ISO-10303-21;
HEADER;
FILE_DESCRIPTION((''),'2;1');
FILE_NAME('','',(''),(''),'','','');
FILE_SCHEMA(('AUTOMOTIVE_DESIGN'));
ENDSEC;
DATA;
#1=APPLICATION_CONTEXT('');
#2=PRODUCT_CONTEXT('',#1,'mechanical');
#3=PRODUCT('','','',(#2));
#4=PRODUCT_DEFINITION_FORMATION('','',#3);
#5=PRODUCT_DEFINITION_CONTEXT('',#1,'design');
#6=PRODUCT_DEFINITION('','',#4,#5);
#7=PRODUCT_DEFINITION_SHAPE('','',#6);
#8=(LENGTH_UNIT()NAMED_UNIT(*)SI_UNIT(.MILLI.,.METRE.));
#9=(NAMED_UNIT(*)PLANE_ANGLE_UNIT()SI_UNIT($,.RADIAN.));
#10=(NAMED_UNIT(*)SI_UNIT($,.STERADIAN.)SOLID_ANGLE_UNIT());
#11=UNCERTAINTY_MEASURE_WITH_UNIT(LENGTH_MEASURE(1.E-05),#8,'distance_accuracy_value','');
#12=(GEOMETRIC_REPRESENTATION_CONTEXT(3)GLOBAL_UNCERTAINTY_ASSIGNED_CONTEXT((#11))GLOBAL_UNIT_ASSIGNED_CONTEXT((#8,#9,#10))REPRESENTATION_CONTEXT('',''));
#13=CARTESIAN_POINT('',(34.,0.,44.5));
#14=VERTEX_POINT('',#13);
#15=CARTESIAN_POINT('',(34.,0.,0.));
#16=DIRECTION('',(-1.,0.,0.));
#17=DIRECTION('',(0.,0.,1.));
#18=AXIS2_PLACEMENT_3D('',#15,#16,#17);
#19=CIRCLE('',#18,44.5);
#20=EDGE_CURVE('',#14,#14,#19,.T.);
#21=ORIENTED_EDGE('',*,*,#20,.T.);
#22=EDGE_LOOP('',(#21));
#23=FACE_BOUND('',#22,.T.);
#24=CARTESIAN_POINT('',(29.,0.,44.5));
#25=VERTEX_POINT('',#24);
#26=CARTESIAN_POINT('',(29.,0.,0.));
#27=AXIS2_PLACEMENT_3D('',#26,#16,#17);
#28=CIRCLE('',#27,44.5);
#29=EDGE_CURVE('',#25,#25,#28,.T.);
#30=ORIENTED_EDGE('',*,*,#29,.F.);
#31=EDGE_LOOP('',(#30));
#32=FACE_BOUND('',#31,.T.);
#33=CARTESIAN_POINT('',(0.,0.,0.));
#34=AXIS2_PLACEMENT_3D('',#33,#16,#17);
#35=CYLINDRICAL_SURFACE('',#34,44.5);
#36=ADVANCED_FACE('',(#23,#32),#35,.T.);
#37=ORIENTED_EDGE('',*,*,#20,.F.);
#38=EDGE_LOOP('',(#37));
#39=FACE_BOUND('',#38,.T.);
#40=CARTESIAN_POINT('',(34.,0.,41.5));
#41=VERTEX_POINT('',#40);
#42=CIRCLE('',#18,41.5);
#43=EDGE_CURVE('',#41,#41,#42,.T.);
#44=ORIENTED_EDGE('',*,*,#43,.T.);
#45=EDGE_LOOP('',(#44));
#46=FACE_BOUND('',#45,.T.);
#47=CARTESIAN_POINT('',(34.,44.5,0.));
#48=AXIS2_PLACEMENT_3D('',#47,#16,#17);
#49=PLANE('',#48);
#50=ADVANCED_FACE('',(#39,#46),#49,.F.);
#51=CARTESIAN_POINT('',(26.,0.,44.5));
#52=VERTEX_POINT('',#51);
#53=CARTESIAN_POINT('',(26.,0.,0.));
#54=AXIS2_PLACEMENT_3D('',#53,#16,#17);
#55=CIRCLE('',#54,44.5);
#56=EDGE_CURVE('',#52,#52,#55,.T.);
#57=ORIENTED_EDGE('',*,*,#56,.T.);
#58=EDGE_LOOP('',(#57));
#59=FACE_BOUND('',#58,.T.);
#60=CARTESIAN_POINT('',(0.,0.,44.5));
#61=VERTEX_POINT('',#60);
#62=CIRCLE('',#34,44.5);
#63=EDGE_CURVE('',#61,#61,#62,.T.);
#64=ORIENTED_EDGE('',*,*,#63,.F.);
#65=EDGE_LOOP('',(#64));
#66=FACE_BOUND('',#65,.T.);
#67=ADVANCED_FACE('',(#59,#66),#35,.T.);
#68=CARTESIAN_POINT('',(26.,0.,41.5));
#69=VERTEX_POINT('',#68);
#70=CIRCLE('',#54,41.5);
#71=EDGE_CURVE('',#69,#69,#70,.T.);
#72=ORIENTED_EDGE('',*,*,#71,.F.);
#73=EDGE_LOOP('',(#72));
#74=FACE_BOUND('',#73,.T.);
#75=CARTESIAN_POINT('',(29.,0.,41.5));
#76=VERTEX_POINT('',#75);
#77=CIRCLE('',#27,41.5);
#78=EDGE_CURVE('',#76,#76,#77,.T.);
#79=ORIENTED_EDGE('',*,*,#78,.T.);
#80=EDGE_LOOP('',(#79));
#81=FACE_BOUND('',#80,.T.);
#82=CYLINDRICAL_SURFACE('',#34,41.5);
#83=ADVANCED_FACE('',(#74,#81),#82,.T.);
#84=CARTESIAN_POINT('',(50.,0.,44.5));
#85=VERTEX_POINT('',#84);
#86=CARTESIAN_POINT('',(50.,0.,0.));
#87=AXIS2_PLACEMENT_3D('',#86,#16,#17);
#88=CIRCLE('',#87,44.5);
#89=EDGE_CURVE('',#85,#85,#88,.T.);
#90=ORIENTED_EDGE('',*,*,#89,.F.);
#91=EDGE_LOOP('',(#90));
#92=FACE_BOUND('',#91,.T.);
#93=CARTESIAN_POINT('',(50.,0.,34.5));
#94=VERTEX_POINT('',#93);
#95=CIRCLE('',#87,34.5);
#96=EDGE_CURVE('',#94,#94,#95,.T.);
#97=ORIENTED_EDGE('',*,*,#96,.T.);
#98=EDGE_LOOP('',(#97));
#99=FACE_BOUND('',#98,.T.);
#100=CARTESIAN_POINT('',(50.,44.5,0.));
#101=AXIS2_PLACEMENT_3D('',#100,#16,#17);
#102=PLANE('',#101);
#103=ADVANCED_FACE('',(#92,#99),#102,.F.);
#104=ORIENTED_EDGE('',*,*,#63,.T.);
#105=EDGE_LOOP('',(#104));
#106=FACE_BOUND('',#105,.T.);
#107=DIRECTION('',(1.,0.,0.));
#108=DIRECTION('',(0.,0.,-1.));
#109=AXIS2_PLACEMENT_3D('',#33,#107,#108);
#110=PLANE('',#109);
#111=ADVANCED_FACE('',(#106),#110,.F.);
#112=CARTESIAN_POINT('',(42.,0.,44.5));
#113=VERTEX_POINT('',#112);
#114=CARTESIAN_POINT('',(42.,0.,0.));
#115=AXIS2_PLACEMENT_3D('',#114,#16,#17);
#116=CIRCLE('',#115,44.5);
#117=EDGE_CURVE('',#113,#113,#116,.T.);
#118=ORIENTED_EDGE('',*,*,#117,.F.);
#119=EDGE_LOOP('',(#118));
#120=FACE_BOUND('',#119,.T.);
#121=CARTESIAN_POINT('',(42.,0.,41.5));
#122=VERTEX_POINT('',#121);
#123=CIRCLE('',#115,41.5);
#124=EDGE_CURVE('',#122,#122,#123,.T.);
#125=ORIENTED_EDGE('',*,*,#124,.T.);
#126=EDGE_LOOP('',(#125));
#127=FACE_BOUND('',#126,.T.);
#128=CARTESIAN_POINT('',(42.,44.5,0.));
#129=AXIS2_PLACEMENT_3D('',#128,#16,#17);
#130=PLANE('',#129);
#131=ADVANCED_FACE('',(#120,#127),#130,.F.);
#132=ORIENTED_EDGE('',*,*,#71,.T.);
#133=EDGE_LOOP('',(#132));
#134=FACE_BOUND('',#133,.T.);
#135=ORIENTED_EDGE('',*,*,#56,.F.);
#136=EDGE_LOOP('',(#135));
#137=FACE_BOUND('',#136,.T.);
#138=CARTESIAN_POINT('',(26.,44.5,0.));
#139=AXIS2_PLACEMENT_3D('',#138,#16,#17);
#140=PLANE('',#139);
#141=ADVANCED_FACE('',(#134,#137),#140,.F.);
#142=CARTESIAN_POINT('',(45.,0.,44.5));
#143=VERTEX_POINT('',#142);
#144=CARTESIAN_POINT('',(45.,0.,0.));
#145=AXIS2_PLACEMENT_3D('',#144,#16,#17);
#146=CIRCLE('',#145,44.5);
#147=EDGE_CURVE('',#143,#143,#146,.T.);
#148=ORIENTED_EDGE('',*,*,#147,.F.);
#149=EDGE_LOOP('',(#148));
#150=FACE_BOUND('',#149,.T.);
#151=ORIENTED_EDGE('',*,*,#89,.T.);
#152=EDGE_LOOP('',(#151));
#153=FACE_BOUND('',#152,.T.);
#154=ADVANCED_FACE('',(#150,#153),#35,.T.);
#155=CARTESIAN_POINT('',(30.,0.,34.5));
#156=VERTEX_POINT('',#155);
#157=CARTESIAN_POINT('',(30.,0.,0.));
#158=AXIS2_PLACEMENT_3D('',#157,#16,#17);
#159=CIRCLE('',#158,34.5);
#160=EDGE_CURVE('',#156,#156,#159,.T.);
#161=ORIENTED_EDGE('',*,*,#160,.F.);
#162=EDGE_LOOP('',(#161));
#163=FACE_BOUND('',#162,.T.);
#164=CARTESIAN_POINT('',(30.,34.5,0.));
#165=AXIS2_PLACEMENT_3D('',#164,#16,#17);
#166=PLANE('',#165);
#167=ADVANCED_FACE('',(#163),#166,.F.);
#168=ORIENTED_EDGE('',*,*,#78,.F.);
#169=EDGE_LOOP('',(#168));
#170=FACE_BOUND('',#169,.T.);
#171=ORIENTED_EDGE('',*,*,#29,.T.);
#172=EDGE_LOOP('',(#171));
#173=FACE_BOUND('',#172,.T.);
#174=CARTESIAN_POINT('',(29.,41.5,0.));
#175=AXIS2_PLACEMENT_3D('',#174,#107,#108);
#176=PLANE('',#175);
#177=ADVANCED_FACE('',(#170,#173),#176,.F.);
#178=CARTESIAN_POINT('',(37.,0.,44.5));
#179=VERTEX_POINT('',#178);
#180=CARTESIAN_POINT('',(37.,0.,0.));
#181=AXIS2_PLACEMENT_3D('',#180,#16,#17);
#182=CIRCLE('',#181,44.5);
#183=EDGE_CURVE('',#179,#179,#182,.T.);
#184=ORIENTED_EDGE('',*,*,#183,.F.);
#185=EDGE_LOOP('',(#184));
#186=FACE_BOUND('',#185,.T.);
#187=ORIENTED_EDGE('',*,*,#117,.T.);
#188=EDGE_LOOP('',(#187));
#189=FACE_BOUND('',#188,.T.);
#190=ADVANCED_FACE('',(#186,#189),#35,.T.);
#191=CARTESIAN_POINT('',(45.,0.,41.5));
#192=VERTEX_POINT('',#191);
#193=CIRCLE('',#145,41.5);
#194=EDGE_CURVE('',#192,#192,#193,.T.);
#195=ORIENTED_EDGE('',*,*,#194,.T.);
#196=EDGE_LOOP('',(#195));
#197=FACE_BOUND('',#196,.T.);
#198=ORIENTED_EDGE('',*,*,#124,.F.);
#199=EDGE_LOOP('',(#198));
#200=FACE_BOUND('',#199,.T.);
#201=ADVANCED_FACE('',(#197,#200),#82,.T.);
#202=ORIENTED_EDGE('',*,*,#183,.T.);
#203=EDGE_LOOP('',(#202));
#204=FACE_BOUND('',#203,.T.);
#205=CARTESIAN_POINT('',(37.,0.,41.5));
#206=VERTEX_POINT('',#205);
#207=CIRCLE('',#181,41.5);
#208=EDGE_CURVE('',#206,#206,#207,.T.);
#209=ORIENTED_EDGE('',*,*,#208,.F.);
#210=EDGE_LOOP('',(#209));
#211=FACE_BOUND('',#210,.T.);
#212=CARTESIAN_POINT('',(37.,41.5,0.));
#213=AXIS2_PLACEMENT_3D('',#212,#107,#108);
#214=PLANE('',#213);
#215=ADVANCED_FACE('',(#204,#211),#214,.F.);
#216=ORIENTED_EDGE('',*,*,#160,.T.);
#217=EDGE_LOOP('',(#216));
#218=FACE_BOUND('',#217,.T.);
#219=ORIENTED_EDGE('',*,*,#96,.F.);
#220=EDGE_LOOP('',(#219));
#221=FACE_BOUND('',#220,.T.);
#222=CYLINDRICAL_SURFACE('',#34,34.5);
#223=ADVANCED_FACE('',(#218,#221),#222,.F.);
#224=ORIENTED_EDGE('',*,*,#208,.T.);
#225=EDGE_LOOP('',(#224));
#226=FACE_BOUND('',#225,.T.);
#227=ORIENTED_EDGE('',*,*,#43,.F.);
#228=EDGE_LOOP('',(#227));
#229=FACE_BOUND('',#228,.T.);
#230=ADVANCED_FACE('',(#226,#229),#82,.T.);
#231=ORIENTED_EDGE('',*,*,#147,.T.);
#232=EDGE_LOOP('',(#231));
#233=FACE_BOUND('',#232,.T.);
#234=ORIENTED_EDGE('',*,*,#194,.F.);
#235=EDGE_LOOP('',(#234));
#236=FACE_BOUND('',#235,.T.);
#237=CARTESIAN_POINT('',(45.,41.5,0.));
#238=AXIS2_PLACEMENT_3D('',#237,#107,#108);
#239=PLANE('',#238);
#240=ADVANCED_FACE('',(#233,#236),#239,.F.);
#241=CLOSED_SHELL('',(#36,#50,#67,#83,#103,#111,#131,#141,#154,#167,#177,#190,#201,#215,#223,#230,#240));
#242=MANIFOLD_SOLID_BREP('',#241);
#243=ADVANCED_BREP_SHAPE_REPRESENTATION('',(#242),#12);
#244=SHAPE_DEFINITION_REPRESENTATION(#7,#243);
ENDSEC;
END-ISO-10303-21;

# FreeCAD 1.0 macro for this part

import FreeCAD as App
import Part
import Sketcher

V = App.Vector


def add_polygon(sketch, points):
    """Adds a closed chain of lines whose ends are joined by coincident constraints."""
    first, n = sketch.GeometryCount, len(points)
    for a, b in zip(points, points[1:] + points[:1]):
        sketch.addGeometry(Part.LineSegment(App.Vector(*a, 0), App.Vector(*b, 0)), False)
    for i in range(n):
        sketch.addConstraint(Sketcher.Constraint("Coincident", first + i, 2, first + (i + 1) % n, 1))

doc = App.newDocument("Part")
body = doc.addObject("PartDesign::Body", "Body")

# Sketch on XY plane
sketch1 = doc.addObject("Sketcher::SketchObject", "Sketch")
body.addObject(sketch1)
sketch1.AttachmentSupport = (doc.XY_Plane, [""])
sketch1.MapMode = "FlatFace"
add_polygon(sketch1, [(0, 44.5), (0, 0), (30, 0), (30, 34.5), (50, 34.5), (50, 44.5), (45, 44.5), (45, 41.5), (42, 41.5), (42, 44.5), (37, 44.5), (37, 41.5), (34, 41.5), (34, 44.5), (29, 44.5), (29, 41.5), (26, 41.5), (26, 44.5)])  # lines 0-17
sketch1.addConstraint([
    Sketcher.Constraint("Vertical", 0),
    Sketcher.Constraint("Horizontal", 1),
    Sketcher.Constraint("Vertical", 2),
    Sketcher.Constraint("Horizontal", 3),
    Sketcher.Constraint("Vertical", 4),
    Sketcher.Constraint("Horizontal", 5),
    Sketcher.Constraint("Vertical", 6),
    Sketcher.Constraint("Horizontal", 7),
    Sketcher.Constraint("Vertical", 8),
    Sketcher.Constraint("Horizontal", 9),
    Sketcher.Constraint("Vertical", 10),
    Sketcher.Constraint("Horizontal", 11),
    Sketcher.Constraint("Vertical", 12),
    Sketcher.Constraint("Horizontal", 13),
    Sketcher.Constraint("Vertical", 14),
    Sketcher.Constraint("Horizontal", 15),
    Sketcher.Constraint("Vertical", 16),
    Sketcher.Constraint("Horizontal", 17),
    Sketcher.Constraint("Coincident", 0, 2, -1, 1),
    Sketcher.Constraint("Horizontal", 5, 2, 8, 2),
    Sketcher.Constraint("Horizontal", 7, 2, 10, 2),
    Sketcher.Constraint("Horizontal", 9, 2, 12, 2),
    Sketcher.Constraint("Horizontal", 11, 2, 14, 2),
    Sketcher.Constraint("Horizontal", 13, 2, 16, 2),
    Sketcher.Constraint("Equal", 5, 9),
    Sketcher.Constraint("Equal", 7, 11),
    Sketcher.Constraint("Equal", 9, 13),
    Sketcher.Constraint("Equal", 11, 15),
    Sketcher.Constraint("Equal", 15, 6),
    Sketcher.Constraint("DistanceX", 1, 1, 1, 2, 30.0),
    Sketcher.Constraint("DistanceX", 3, 1, 3, 2, 20.0),
    Sketcher.Constraint("DistanceX", 5, 2, 5, 1, 5.0),
    Sketcher.Constraint("DistanceX", 7, 2, 7, 1, 3.0),
    Sketcher.Constraint("DistanceY", 4, 1, 4, 2, 10.0),
    Sketcher.Constraint("DistanceY", 0, 2, 0, 1, 44.5),
])
revolution = doc.addObject("PartDesign::Revolution", "Revolution")
body.addObject(revolution)
revolution.Profile = sketch1
revolution.ReferenceAxis = (sketch1, ["H_Axis"])
revolution.Angle = 360

doc.recompute()
